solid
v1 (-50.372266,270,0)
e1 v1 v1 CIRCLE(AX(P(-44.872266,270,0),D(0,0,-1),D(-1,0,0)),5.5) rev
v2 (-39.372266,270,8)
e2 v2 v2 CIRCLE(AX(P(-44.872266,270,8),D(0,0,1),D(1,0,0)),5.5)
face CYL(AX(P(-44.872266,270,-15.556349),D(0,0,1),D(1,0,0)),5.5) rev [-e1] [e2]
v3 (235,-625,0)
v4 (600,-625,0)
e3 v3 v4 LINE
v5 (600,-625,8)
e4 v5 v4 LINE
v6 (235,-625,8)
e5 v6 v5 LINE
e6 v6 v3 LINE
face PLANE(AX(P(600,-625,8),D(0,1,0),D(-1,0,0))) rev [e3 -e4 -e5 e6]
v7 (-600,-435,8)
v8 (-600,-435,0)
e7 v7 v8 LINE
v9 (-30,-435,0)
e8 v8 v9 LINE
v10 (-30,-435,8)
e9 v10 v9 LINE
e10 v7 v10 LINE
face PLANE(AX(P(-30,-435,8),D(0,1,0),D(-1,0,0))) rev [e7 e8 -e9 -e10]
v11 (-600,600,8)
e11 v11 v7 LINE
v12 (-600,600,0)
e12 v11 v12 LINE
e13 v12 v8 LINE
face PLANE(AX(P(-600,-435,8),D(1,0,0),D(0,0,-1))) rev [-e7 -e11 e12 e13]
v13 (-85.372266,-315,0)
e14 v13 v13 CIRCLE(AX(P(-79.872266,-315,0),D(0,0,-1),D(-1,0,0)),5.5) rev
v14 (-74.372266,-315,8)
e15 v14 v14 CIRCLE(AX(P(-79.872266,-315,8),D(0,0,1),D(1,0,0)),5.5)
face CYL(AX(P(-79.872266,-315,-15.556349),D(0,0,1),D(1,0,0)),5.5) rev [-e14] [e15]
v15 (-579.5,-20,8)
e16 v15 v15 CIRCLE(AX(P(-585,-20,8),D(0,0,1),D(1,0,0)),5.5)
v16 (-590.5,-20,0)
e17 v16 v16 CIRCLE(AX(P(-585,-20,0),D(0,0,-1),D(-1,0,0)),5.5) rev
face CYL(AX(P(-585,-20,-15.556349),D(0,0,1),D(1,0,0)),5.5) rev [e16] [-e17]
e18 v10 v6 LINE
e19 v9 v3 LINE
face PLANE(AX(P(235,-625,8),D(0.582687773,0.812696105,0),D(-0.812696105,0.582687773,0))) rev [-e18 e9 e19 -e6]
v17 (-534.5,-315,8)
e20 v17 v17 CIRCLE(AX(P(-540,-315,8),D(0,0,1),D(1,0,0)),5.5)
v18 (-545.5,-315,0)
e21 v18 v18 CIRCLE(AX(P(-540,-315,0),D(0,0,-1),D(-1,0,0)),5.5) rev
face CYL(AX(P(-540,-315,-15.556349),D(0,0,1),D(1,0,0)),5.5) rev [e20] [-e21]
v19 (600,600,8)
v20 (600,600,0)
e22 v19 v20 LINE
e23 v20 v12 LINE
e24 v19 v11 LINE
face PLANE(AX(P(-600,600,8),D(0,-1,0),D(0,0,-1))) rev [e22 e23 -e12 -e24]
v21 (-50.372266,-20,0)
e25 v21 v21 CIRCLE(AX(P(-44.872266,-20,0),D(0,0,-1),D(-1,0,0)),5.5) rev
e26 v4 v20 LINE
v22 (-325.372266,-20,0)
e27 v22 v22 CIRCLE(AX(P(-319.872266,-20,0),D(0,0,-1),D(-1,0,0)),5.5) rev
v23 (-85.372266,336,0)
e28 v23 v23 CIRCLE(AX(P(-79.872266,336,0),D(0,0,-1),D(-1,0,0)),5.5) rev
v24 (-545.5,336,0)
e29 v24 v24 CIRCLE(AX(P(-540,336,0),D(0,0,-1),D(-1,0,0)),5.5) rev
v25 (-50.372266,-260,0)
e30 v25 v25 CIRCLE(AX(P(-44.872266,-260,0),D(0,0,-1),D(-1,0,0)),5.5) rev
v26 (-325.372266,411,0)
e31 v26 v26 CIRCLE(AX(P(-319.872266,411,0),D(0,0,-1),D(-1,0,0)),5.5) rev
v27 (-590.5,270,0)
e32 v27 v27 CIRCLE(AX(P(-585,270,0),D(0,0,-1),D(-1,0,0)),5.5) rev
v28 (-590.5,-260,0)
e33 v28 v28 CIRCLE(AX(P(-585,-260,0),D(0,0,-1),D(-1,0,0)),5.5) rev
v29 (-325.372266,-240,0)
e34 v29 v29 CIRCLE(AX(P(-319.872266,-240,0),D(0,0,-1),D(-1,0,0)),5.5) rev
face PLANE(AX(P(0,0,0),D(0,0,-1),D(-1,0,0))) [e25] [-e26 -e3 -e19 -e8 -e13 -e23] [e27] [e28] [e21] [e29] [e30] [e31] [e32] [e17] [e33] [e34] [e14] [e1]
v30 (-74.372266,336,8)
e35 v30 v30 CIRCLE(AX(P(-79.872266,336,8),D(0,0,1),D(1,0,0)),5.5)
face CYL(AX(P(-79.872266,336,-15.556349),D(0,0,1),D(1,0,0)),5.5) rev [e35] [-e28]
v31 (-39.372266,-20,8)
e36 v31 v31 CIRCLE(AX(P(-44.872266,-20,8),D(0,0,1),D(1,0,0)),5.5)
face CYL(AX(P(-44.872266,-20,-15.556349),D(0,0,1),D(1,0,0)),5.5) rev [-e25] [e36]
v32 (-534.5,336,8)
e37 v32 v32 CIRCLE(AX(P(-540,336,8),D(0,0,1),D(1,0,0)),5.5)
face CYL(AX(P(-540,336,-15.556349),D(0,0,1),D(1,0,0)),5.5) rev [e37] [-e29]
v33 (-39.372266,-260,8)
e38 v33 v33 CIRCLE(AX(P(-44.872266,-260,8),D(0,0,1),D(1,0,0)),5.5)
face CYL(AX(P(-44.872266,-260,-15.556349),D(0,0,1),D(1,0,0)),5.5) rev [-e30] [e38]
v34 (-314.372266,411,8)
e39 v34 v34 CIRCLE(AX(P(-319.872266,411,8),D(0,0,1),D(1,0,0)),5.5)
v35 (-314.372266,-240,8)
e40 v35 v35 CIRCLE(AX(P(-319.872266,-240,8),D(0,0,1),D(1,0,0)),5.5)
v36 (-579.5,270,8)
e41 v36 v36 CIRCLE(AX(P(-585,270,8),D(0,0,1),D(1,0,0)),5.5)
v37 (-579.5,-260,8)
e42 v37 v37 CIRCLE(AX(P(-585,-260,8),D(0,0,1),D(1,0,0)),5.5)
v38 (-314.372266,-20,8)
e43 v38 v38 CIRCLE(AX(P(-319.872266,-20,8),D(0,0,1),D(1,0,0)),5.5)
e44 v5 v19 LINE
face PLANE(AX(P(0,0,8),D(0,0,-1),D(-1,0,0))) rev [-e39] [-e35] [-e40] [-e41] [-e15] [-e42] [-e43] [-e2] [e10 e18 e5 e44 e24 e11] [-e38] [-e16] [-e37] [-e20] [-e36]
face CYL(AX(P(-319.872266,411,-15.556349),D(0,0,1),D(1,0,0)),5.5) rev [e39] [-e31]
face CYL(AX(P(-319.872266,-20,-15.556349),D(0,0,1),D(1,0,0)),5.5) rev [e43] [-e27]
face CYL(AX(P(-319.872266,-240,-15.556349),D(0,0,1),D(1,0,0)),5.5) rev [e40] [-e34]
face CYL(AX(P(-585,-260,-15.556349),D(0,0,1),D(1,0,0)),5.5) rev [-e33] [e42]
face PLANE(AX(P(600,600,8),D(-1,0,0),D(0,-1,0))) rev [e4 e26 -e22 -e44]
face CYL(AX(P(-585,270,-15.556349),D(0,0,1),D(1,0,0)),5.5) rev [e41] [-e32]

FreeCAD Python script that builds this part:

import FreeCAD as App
import Part
import Sketcher

V = App.Vector


def add_polygon(sketch, points):
    """Adds a closed chain of lines whose ends are joined by coincident constraints."""
    first, n = sketch.GeometryCount, len(points)
    for a, b in zip(points, points[1:] + points[:1]):
        sketch.addGeometry(Part.LineSegment(App.Vector(*a, 0), App.Vector(*b, 0)), False)
    for i in range(n):
        sketch.addConstraint(Sketcher.Constraint("Coincident", first + i, 2, first + (i + 1) % n, 1))

doc = App.newDocument("Part")
body = doc.addObject("PartDesign::Body", "Body")

# Sketch on XY plane
sketch1 = body.newObject("Sketcher::SketchObject", "Sketch")
sketch1.AttachmentSupport = (doc.getObject("XY_Plane"), [""])
sketch1.MapMode = "FlatFace"
add_polygon(sketch1, [(600, 600), (-600, 600), (-600, -435), (-30, -435), (235, -625), (600, -625)])  # lines 0-5
sketch1.addConstraint([
    Sketcher.Constraint("Horizontal", 0),
    Sketcher.Constraint("Vertical", 1),
    Sketcher.Constraint("Horizontal", 2),
    Sketcher.Constraint("Horizontal", 4),
    Sketcher.Constraint("Vertical", 5),
    Sketcher.Constraint("DistanceX", 0, 2, 0, 1, 1200.0),
    Sketcher.Constraint("DistanceX", 2, 1, 2, 2, 570.0),
    Sketcher.Constraint("DistanceX", 4, 1, 4, 2, 365.0),
    Sketcher.Constraint("DistanceY", 1, 2, 1, 1, 1035.0),
    Sketcher.Constraint("DistanceY", 5, 1, 5, 2, 1225.0),
    Sketcher.Constraint("DistanceX", 0, 2, -1, 1, 600.0),
    Sketcher.Constraint("DistanceY", -1, 1, 0, 2, 600.0),
])
pad1 = body.newObject("PartDesign::Pad", "Pad")
pad1.Profile = sketch1
pad1.Length = 8

# Sketch on XY plane
sketch2 = body.newObject("Sketcher::SketchObject", "Sketch001")
sketch2.AttachmentSupport = (doc.getObject("XY_Plane"), [""])
sketch2.MapMode = "FlatFace"
sketch2.AttachmentOffset = App.Placement(V(0, 0, 8), App.Rotation())
sketch2.addGeometry([
    Part.Circle(V(-585, -260, 0), V(0, 0, 1), 5.5),  # 0
    Part.Circle(V(-540, -315, 0), V(0, 0, 1), 5.5),  # 1
    Part.Circle(V(-79.872266, -315, 0), V(0, 0, 1), 5.5),  # 2
    Part.Circle(V(-44.872266, -260, 0), V(0, 0, 1), 5.5),  # 3
    Part.Circle(V(-44.872266, -20, 0), V(0, 0, 1), 5.5),  # 4
    Part.Circle(V(-79.872266, 336, 0), V(0, 0, 1), 5.5),  # 5
    Part.Circle(V(-540, 336, 0), V(0, 0, 1), 5.5),  # 6
    Part.Circle(V(-585, -20, 0), V(0, 0, 1), 5.5),  # 7
    Part.Circle(V(-585, 270, 0), V(0, 0, 1), 5.5),  # 8
    Part.Circle(V(-44.872266, 270, 0), V(0, 0, 1), 5.5),  # 9
    Part.Circle(V(-319.872266, 411, 0), V(0, 0, 1), 5.5),  # 10
    Part.Circle(V(-319.872266, -20, 0), V(0, 0, 1), 5.5),  # 11
    Part.Circle(V(-319.872266, -240, 0), V(0, 0, 1), 5.5),  # 12
], False)
sketch2.addConstraint([
    Sketcher.Constraint("Equal", 0, 1),
    Sketcher.Constraint("Equal", 1, 2),
    Sketcher.Constraint("Equal", 2, 3),
    Sketcher.Constraint("Equal", 3, 4),
    Sketcher.Constraint("Equal", 4, 5),
    Sketcher.Constraint("Equal", 5, 6),
    Sketcher.Constraint("Equal", 6, 7),
    Sketcher.Constraint("Equal", 7, 8),
    Sketcher.Constraint("Equal", 8, 9),
    Sketcher.Constraint("Equal", 9, 10),
    Sketcher.Constraint("Equal", 10, 11),
    Sketcher.Constraint("Equal", 11, 12),
    Sketcher.Constraint("Horizontal", 1, 3, 2, 3),
    Sketcher.Constraint("Horizontal", 0, 3, 3, 3),
    Sketcher.Constraint("Horizontal", 5, 3, 6, 3),
    Sketcher.Constraint("Horizontal", 4, 3, 7, 3),
    Sketcher.Constraint("Horizontal", 8, 3, 9, 3),
    Sketcher.Constraint("Horizontal", 7, 3, 11, 3),
    Sketcher.Constraint("Vertical", 3, 3, 4, 3),
    Sketcher.Constraint("Vertical", 2, 3, 5, 3),
    Sketcher.Constraint("Vertical", 1, 3, 6, 3),
    Sketcher.Constraint("Vertical", 0, 3, 7, 3),
    Sketcher.Constraint("Vertical", 7, 3, 8, 3),
    Sketcher.Constraint("Vertical", 4, 3, 9, 3),
    Sketcher.Constraint("Vertical", 10, 3, 11, 3),
    Sketcher.Constraint("Vertical", 11, 3, 12, 3),
    Sketcher.Constraint("Diameter", 0, 11.0),
    Sketcher.Constraint("DistanceX", 0, 3, -1, 1, 585.0),
    Sketcher.Constraint("DistanceY", 0, 3, -1, 1, 260.0),
    Sketcher.Constraint("DistanceX", 1, 3, -1, 1, 540.0),
    Sketcher.Constraint("DistanceY", 1, 3, -1, 1, 315.0),
    Sketcher.Constraint("DistanceY", 4, 3, -1, 1, 20.0),
    Sketcher.Constraint("DistanceY", -1, 1, 5, 3, 336.0),
    Sketcher.Constraint("DistanceY", -1, 1, 8, 3, 270.0),
    Sketcher.Constraint("DistanceY", -1, 1, 10, 3, 411.0),
    Sketcher.Constraint("DistanceY", 12, 3, -1, 1, 240.0),
    Sketcher.Constraint("DistanceX", 2, 3, 3, 3, 35.0),
    Sketcher.Constraint("DistanceX", 10, 3, 5, 3, 240.0),
    Sketcher.Constraint("DistanceX", 2, 3, -1, 1, 79.872266),
])
pocket1 = body.newObject("PartDesign::Pocket", "Pocket")
pocket1.Profile = sketch2
pocket1.Length = 8

doc.recompute()
